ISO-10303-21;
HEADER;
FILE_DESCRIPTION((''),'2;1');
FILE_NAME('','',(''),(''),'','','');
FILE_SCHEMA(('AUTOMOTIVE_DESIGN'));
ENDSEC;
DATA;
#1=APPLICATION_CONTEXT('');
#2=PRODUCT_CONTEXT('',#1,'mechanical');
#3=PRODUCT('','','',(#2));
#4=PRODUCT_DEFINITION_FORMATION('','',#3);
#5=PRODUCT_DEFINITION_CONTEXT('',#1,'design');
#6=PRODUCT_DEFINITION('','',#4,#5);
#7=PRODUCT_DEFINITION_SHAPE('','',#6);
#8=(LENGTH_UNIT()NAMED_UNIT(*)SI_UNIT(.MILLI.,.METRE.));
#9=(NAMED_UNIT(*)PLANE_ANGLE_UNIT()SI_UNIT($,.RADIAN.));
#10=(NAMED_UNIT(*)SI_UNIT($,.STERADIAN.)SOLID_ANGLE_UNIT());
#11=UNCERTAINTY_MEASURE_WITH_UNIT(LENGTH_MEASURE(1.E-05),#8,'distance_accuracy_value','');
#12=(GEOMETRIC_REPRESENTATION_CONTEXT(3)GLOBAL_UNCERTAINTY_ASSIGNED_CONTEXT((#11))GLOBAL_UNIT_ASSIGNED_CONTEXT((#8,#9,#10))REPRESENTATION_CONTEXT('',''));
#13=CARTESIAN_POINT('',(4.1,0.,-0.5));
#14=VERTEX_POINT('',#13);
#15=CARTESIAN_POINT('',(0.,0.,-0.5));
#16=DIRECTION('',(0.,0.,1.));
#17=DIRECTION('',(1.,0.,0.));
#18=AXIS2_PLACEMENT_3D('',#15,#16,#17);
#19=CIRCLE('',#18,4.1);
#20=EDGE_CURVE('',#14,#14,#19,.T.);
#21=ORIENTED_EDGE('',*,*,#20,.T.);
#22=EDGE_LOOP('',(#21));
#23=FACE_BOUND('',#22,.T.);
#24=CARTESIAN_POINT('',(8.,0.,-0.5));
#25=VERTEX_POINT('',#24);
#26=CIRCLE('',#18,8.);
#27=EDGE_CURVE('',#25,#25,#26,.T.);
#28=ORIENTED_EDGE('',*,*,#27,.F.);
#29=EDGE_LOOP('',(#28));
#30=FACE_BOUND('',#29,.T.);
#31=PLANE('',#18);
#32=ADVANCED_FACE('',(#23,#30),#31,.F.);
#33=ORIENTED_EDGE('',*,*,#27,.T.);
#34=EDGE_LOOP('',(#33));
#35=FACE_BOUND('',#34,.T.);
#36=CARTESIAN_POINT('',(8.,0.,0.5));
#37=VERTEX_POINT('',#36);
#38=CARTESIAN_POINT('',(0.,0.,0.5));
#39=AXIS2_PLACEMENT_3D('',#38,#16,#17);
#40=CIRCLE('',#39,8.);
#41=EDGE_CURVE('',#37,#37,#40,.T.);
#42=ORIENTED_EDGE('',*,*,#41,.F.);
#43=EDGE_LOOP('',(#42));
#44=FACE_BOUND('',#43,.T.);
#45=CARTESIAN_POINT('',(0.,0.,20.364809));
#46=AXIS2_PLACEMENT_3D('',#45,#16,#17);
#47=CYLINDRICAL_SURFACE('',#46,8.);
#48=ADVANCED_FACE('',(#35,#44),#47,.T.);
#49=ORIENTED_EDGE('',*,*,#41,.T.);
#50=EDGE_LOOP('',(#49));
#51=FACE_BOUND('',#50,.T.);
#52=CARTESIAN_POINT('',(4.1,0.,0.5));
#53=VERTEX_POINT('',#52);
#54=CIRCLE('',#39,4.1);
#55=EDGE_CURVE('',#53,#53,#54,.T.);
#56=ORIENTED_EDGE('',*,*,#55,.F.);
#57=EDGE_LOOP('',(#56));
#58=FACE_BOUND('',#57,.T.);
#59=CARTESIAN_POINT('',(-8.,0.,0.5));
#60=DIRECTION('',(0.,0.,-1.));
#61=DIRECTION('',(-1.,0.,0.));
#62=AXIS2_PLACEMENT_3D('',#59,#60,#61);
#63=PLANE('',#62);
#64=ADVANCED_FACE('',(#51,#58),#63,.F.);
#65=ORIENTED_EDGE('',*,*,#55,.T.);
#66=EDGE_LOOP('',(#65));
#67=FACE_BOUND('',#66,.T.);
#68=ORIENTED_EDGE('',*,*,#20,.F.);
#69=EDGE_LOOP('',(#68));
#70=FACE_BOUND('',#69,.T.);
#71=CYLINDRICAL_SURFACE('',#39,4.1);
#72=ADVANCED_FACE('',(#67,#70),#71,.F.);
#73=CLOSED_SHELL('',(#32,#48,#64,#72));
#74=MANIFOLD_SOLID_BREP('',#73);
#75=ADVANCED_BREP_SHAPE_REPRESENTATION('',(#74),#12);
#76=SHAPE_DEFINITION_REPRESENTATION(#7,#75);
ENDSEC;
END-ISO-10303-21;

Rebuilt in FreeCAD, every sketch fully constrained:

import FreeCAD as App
import Part
import Sketcher
from FreeCAD import Vector

doc = App.newDocument("Part")
body = doc.addObject("PartDesign::Body", "Body")

# Sketch on XZ plane
sketch1 = doc.addObject("Sketcher::SketchObject", "Sketch")
body.addObject(sketch1)
sketch1.AttachmentSupport = (doc.XZ_Plane, [""])
sketch1.MapMode = "FlatFace"
sketch1.addGeometry([
    Part.LineSegment(Vector(-8, -0.5, 0), Vector(-8, 0.5, 0)),
    Part.LineSegment(Vector(-8, 0.5, 0), Vector(0, 0.5, 0)),
    Part.LineSegment(Vector(0, 0.5, 0), Vector(0, -0.5, 0)),
    Part.LineSegment(Vector(0, -0.5, 0), Vector(-8, -0.5, 0)),
], False)
sketch1.addConstraint([
    Sketcher.Constraint("Coincident", 0, 2, 1, 1),
    Sketcher.Constraint("Coincident", 1, 2, 2, 1),
    Sketcher.Constraint("Coincident", 2, 2, 3, 1),
    Sketcher.Constraint("Coincident", 3, 2, 0, 1),
    Sketcher.Constraint("Vertical", 0),
    Sketcher.Constraint("Horizontal", 1),
    Sketcher.Constraint("Vertical", 2),
    Sketcher.Constraint("Horizontal", 3),
    Sketcher.Constraint("Symmetric", 1, 2, 2, 2, -1, 1),
    Sketcher.Constraint("DistanceX", 1, 1, 1, 2, 8.0),
    Sketcher.Constraint("DistanceY", 0, 1, 0, 2, 1.0),
])
revolution = doc.addObject("PartDesign::Revolution", "Revolution")
body.addObject(revolution)
revolution.Profile = sketch1
revolution.ReferenceAxis = (sketch1, ["V_Axis"])
revolution.Angle = 360

# Sketch on XY plane
sketch2 = doc.addObject("Sketcher::SketchObject", "Sketch001")
body.addObject(sketch2)
sketch2.AttachmentSupport = (doc.XY_Plane, [""])
sketch2.MapMode = "FlatFace"
sketch2.AttachmentOffset = App.Placement(Vector(0, 0, 0.5), App.Rotation())
sketch2.addGeometry(Part.Circle(Vector(0, 0, 0), Vector(0, 0, 1), 4.1), False)
sketch2.addConstraint([
    Sketcher.Constraint("Coincident", 0, 3, -1, 1),
    Sketcher.Constraint("Diameter", 0, 8.2),
])
doc.recompute()
hole = doc.addObject("PartDesign::Hole", "Hole")
body.addObject(hole)
hole.Profile = sketch2
hole.ThreadType = "None"
hole.Diameter = 8.2
hole.DepthType = "ThroughAll"

doc.recompute()
